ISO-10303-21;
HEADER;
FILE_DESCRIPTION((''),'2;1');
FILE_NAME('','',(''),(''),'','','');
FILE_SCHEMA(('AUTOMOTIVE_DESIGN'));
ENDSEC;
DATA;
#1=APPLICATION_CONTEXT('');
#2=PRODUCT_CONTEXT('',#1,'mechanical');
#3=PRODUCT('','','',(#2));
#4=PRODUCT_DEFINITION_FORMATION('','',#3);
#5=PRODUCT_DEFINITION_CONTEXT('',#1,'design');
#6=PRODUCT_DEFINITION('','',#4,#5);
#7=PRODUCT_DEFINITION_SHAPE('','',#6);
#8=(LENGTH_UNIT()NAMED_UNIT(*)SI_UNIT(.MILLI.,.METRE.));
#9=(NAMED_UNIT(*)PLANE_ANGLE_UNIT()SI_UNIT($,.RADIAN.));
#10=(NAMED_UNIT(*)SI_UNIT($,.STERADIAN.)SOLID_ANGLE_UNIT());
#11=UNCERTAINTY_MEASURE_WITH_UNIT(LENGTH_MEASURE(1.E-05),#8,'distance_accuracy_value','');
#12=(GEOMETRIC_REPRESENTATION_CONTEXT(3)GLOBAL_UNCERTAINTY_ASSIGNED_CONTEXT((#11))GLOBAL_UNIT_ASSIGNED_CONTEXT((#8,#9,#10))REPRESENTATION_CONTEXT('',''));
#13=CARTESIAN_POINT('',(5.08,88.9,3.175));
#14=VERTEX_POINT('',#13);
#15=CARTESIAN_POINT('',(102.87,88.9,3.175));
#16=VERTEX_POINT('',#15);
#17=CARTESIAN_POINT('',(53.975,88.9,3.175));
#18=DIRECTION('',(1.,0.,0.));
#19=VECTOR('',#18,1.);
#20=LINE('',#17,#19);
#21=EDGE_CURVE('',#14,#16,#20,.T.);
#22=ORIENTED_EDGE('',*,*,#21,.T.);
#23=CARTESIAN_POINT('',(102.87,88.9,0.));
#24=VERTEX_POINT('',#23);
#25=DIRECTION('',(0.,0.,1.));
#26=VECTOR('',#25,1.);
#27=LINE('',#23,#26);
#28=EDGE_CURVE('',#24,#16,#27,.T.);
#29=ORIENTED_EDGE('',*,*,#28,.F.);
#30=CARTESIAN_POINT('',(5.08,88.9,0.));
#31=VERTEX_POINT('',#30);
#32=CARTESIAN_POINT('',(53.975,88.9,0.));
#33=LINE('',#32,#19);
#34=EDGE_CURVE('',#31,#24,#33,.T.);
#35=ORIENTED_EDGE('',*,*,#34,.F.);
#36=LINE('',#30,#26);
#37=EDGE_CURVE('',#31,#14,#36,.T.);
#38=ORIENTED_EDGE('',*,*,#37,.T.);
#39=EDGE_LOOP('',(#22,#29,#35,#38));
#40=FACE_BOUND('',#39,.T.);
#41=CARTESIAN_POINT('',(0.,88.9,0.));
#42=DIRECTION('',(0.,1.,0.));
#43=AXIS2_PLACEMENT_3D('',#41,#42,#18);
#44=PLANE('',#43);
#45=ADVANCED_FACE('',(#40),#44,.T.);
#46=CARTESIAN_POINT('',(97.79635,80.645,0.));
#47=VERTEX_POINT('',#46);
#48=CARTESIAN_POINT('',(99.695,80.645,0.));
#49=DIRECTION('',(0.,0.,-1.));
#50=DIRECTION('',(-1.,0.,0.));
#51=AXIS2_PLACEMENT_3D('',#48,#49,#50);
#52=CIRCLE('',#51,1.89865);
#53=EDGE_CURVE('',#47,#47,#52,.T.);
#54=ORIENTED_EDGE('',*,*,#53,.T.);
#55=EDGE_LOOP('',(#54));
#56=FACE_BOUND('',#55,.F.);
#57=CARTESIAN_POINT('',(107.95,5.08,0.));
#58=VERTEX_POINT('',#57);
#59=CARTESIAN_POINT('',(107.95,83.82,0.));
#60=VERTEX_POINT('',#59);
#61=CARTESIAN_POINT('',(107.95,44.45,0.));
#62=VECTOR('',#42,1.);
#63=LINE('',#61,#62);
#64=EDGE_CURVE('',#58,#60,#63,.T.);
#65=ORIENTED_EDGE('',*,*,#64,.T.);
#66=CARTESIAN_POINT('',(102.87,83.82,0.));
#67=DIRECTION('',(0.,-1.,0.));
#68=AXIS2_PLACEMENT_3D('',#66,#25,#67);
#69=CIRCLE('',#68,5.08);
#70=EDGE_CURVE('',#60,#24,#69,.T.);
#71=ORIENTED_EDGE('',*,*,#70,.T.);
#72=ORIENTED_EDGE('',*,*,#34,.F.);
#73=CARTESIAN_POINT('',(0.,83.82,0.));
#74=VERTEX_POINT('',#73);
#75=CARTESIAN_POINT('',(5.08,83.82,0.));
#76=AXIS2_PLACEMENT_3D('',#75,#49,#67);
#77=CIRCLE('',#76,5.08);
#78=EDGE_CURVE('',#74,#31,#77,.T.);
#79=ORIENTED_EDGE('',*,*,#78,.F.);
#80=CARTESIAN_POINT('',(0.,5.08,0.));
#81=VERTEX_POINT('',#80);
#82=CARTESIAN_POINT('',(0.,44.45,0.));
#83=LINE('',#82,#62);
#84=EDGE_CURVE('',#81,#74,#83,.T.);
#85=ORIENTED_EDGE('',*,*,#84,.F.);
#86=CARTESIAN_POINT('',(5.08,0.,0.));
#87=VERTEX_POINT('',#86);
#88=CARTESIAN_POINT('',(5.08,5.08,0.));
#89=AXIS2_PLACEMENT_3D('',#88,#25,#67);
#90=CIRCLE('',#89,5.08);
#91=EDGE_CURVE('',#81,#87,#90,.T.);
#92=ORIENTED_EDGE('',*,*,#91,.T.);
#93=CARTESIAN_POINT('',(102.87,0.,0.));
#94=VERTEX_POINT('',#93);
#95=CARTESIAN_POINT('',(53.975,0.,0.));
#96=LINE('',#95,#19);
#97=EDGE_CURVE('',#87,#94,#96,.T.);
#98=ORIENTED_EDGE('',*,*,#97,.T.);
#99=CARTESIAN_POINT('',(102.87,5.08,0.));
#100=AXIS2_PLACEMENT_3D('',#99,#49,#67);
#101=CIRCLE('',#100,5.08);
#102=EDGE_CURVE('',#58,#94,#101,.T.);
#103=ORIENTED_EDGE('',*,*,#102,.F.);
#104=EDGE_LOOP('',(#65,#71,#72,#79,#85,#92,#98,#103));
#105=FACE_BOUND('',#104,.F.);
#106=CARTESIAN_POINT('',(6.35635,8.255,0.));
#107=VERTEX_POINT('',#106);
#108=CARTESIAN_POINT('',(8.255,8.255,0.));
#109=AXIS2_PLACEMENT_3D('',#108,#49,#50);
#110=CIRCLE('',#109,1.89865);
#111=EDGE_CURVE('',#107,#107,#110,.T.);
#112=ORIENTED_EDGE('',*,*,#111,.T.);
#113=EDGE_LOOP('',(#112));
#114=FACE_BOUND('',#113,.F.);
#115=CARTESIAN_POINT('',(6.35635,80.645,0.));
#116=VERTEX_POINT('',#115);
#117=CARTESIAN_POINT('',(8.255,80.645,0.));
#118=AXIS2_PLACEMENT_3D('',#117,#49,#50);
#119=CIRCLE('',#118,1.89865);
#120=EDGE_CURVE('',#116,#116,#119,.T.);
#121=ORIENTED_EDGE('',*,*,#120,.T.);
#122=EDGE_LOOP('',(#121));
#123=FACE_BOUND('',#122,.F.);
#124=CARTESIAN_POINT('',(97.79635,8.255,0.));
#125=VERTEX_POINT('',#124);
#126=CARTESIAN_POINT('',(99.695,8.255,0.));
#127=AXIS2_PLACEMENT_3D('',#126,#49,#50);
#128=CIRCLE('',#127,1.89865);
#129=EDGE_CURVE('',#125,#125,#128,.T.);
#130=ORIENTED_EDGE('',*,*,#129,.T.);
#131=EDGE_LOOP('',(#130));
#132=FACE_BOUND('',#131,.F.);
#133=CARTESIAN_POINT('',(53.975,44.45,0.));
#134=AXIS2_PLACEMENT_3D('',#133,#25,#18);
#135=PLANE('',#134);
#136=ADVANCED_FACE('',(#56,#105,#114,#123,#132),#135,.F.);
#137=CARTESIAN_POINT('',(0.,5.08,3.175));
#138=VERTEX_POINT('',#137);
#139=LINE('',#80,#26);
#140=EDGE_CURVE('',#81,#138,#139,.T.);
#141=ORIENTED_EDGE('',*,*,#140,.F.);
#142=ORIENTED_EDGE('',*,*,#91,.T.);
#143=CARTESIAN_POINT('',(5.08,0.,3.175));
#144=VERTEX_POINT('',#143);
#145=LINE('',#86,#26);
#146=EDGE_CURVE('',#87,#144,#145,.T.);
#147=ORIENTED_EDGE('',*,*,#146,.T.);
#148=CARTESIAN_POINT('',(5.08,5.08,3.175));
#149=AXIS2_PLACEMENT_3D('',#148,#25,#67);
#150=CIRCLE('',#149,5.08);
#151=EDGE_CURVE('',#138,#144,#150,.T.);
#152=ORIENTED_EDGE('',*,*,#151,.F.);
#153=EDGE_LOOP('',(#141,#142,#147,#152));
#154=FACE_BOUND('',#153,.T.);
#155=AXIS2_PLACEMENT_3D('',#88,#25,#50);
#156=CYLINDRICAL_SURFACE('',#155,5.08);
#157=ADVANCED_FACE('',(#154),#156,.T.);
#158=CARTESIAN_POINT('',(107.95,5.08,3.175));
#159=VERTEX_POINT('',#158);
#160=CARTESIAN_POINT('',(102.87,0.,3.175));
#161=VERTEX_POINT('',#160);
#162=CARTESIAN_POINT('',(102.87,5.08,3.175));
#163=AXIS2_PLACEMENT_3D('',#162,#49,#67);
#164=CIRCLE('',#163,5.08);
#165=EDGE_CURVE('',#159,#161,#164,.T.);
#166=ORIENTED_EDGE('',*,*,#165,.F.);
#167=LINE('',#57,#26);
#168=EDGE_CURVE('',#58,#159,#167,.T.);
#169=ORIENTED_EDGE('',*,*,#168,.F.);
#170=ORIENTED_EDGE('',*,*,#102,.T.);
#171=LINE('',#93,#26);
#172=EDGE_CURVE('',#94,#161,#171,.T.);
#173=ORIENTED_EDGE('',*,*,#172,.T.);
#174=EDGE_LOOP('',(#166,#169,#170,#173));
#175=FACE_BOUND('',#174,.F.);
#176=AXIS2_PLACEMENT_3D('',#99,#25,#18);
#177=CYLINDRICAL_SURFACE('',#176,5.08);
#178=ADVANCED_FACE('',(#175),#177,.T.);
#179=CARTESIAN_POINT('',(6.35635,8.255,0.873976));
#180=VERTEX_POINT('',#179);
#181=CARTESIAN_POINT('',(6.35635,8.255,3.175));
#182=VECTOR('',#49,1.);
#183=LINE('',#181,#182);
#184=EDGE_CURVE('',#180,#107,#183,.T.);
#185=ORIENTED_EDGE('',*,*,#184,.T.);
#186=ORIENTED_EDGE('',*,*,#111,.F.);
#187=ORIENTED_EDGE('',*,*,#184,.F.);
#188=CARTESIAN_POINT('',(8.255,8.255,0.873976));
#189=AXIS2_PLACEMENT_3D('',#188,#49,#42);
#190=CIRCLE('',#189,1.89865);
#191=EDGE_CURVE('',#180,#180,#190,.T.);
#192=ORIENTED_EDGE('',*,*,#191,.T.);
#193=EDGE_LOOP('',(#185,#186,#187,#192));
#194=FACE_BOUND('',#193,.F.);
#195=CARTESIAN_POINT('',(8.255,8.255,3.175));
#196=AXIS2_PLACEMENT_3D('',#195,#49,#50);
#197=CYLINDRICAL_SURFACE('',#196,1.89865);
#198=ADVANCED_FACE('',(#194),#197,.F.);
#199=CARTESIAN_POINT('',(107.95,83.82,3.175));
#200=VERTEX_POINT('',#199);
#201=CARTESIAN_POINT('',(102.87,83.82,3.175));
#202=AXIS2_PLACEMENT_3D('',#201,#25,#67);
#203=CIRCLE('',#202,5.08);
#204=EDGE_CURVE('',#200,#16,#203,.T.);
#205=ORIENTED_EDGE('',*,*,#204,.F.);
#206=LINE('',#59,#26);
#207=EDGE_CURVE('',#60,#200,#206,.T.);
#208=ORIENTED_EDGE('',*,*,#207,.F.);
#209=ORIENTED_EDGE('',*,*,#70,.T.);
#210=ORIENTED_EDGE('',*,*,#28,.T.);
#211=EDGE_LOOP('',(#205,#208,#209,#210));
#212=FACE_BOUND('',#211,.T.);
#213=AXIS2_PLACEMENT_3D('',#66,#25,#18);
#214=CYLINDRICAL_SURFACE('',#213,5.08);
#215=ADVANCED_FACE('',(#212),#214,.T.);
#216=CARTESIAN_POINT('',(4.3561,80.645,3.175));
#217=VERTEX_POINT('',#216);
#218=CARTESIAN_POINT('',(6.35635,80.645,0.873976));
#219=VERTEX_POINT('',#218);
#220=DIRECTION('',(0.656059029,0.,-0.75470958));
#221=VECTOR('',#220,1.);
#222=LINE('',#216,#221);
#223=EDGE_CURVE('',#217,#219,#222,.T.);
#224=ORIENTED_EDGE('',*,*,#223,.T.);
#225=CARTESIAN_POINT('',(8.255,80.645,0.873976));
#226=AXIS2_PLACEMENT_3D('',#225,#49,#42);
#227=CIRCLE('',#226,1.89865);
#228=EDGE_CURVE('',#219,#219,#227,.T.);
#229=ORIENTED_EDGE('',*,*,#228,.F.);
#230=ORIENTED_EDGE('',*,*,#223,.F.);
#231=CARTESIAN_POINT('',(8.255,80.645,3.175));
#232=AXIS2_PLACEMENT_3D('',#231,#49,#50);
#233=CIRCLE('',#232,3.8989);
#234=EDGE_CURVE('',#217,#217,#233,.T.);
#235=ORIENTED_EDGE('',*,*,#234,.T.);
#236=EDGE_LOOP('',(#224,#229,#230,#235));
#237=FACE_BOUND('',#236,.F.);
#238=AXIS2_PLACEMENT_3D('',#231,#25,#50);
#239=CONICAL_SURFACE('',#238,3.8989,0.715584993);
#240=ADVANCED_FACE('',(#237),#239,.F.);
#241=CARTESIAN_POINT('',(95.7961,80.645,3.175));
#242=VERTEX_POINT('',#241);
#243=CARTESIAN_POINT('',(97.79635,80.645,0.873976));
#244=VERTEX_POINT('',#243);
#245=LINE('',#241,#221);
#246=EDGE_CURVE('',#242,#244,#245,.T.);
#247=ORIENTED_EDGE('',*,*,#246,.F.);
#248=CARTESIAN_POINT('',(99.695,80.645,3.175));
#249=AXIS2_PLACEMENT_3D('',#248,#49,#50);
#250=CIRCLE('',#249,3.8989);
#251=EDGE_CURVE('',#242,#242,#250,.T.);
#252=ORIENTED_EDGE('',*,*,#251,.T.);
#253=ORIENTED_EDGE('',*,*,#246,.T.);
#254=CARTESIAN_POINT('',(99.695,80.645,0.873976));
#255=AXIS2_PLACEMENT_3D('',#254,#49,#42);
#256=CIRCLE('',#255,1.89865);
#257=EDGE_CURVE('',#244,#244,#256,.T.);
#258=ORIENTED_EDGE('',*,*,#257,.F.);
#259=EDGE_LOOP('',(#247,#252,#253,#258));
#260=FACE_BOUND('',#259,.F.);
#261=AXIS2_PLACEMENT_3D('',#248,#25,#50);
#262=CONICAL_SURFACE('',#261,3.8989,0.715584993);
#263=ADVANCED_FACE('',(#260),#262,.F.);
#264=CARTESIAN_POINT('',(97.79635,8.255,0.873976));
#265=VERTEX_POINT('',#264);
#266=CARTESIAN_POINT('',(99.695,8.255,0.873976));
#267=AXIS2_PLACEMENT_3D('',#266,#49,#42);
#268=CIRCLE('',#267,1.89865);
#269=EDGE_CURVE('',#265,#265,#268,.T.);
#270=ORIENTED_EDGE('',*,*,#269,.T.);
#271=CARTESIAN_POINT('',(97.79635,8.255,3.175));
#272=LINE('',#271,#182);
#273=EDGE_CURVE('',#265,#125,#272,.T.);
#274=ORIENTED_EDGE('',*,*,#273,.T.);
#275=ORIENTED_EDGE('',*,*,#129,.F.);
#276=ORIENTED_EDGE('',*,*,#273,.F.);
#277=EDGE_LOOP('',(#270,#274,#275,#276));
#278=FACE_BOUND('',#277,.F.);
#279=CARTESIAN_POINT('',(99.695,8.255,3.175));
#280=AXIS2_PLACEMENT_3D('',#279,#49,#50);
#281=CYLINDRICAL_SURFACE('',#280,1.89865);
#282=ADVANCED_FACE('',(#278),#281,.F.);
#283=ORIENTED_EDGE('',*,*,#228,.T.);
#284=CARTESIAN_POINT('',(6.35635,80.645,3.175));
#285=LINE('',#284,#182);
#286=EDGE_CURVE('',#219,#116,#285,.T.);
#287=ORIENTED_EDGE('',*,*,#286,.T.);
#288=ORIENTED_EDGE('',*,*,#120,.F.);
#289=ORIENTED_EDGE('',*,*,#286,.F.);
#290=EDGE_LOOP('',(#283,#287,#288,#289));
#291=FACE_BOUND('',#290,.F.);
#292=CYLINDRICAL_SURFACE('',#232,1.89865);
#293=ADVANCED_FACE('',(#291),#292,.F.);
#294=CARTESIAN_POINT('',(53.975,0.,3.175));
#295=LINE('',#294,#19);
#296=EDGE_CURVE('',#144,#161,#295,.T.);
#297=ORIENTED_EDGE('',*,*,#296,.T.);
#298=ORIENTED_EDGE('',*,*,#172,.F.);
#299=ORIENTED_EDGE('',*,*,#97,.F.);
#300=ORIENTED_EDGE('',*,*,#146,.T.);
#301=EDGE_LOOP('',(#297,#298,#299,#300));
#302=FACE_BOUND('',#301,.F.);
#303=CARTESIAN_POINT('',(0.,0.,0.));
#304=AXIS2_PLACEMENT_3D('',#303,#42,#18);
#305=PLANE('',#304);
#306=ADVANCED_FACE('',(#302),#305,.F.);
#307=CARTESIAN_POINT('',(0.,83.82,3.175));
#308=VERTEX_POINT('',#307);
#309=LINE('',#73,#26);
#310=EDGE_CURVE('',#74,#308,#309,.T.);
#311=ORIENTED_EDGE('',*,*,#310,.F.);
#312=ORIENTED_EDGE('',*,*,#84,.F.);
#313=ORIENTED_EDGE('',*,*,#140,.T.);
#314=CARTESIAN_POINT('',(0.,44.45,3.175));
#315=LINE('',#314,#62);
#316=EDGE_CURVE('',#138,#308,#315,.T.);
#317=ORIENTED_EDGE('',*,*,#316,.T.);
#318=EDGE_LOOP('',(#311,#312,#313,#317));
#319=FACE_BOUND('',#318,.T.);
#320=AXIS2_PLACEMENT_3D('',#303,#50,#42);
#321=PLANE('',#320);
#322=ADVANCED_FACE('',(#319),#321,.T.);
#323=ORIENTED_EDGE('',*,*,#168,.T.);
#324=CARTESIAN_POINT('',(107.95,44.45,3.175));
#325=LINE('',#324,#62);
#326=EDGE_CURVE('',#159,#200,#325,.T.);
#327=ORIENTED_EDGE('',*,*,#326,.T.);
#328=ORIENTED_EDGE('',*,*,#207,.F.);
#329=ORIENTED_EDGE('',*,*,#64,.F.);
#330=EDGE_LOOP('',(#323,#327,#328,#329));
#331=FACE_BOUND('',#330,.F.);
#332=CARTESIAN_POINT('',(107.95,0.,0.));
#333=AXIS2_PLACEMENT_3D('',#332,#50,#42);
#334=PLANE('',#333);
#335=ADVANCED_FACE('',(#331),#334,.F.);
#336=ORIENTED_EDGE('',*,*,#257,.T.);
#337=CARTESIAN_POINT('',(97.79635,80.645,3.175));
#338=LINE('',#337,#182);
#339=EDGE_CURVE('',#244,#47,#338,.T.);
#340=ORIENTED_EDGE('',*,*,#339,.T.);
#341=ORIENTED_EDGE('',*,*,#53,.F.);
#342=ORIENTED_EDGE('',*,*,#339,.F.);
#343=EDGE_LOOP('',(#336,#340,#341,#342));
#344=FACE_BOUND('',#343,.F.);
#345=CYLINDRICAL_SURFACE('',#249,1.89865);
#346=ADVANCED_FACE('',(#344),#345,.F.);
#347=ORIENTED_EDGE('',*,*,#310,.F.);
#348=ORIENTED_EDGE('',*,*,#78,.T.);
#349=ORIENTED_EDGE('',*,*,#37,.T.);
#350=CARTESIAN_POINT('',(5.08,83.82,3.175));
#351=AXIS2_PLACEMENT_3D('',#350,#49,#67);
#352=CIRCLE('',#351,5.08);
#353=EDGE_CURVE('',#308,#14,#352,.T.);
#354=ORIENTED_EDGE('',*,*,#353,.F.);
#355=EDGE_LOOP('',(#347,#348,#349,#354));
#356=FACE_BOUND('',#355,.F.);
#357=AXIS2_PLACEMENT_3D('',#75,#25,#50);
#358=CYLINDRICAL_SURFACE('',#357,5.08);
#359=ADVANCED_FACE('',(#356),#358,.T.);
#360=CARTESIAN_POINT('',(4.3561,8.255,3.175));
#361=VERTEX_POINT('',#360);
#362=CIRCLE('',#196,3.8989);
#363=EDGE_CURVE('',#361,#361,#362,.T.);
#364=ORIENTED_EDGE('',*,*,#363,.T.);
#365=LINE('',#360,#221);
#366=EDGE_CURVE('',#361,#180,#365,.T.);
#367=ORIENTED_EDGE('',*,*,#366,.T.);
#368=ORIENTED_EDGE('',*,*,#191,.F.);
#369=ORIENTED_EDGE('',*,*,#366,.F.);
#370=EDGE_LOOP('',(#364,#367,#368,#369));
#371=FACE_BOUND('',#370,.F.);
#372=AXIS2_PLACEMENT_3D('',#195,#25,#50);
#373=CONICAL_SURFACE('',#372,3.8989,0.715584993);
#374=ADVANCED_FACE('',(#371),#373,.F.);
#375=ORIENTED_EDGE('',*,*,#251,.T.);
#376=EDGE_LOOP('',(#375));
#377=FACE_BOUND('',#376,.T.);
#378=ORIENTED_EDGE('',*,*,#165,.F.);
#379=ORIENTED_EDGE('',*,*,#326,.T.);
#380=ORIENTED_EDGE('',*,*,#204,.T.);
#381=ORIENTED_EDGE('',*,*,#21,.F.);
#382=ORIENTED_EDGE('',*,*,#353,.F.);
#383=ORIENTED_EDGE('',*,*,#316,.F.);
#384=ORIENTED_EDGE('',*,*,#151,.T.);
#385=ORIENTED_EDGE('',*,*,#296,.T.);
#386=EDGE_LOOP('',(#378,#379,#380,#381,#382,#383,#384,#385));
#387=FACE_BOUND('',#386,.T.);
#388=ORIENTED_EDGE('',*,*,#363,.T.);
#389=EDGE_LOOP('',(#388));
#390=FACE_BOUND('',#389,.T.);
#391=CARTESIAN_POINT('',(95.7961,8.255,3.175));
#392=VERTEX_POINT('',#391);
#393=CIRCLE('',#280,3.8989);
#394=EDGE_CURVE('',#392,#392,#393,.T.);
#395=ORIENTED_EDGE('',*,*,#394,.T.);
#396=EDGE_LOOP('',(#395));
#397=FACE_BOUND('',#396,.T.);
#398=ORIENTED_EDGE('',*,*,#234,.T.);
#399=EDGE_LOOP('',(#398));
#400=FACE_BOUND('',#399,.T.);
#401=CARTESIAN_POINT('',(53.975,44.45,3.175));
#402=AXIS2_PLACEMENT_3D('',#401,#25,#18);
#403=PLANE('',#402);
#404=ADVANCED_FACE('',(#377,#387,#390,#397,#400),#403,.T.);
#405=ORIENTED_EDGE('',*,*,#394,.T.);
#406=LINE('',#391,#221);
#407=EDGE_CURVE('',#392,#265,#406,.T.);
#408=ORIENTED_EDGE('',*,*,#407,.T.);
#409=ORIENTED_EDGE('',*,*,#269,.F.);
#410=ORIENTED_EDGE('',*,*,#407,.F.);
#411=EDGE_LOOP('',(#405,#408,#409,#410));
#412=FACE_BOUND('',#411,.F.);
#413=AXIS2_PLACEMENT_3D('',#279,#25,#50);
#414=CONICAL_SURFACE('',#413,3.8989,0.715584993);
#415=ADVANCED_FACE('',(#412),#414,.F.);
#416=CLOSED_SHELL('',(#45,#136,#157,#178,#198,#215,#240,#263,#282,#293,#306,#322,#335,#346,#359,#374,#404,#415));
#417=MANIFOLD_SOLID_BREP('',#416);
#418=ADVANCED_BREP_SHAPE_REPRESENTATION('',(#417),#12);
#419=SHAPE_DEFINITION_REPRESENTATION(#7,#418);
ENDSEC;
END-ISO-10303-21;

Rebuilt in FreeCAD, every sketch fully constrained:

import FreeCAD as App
import Part
import Sketcher
Q = App.Units.Quantity


def edges_at(feature, points):
    """Names of the edges that pass closest to the given points."""
    edges = feature.Shape.Edges
    near = lambda p: min(range(len(edges)), key=lambda i: edges[i].distToShape(Part.Vertex(*p))[0])
    return sorted({f"Edge{near(p) + 1}" for p in points})


def add_polygon(sketch, points):
    """Adds a closed chain of lines whose ends are joined by coincident constraints."""
    first, n = sketch.GeometryCount, len(points)
    for a, b in zip(points, points[1:] + points[:1]):
        sketch.addGeometry(Part.LineSegment(App.Vector(*a, 0), App.Vector(*b, 0)), False)
    for i in range(n):
        sketch.addConstraint(Sketcher.Constraint("Coincident", first + i, 2, first + (i + 1) % n, 1))

doc = App.newDocument("Part")
body = doc.addObject("PartDesign::Body", "Body")

# Sketch on XY plane
sketch1 = body.newObject("Sketcher::SketchObject", "Sketch")
sketch1.AttachmentSupport = (doc.getObject("XY_Plane"), [""])
sketch1.MapMode = "FlatFace"
add_polygon(sketch1, [(0, 88.9), (0, 0), (107.95, 0), (107.95, 88.9)])  # lines 0-3
sketch1.addConstraint(Sketcher.Constraint("Vertical", 0))
sketch1.addConstraint(Sketcher.Constraint("Horizontal", 1))
sketch1.addConstraint(Sketcher.Constraint("Vertical", 2))
sketch1.addConstraint(Sketcher.Constraint("Horizontal", 3))
sketch1.addConstraint(Sketcher.Constraint("Coincident", 0, 2, -1, 1))
sketch1.addConstraint(Sketcher.Constraint("DistanceY", 0, 2, 0, 1, Q("3.5 in")))
sketch1.addConstraint(Sketcher.Constraint("DistanceX", 1, 1, 1, 2, Q("4.25 in")))
pad1 = body.newObject("PartDesign::Pad", "Pad")
pad1.Profile = sketch1
pad1.Length = Q("0.125 in")

# Sketch on XY plane
sketch2 = body.newObject("Sketcher::SketchObject", "Sketch001")
sketch2.AttachmentSupport = (doc.getObject("XY_Plane"), [""])
sketch2.MapMode = "FlatFace"
sketch2.AttachmentOffset = App.Placement(App.Vector(0, 0, 0.125 * 25.4), App.Rotation())
sketch2.addGeometry(Part.Circle(App.Vector(8.255, 80.645, 0), App.Vector(0, 0, 1), 1.89865), False)
sketch2.addGeometry(Part.Circle(App.Vector(99.695, 80.645, 0), App.Vector(0, 0, 1), 1.89865), False)
sketch2.addGeometry(Part.Circle(App.Vector(99.695, 8.255, 0), App.Vector(0, 0, 1), 1.89865), False)
sketch2.addGeometry(Part.Circle(App.Vector(8.255, 8.255, 0), App.Vector(0, 0, 1), 1.89865), False)
sketch2.addConstraint(Sketcher.Constraint("Equal", 0, 1))
sketch2.addConstraint(Sketcher.Constraint("Equal", 1, 2))
sketch2.addConstraint(Sketcher.Constraint("Equal", 2, 3))
sketch2.addConstraint(Sketcher.Constraint("Horizontal", 0, 3, 1, 3))
sketch2.addConstraint(Sketcher.Constraint("Horizontal", 2, 3, 3, 3))
sketch2.addConstraint(Sketcher.Constraint("Vertical", 1, 3, 2, 3))
sketch2.addConstraint(Sketcher.Constraint("Vertical", 0, 3, 3, 3))
sketch2.addConstraint(Sketcher.Constraint("Diameter", 0, Q("0.1495 in")))
sketch2.addConstraint(Sketcher.Constraint("DistanceX", 0, 3, 1, 3, Q("3.6 in")))
sketch2.addConstraint(Sketcher.Constraint("DistanceY", 2, 3, 1, 3, Q("2.85 in")))
sketch2.addConstraint(Sketcher.Constraint("DistanceX", -1, 1, 0, 3, Q("0.325 in")))
sketch2.addConstraint(Sketcher.Constraint("DistanceY", -1, 1, 0, 3, Q("3.175 in")))
doc.recompute()
hole = body.newObject("PartDesign::Hole", "Hole")
hole.Profile = sketch2
hole.ThreadType = "None"
hole.Diameter = Q("0.1495 in")
hole.DepthType = "ThroughAll"
hole.HoleCutType = "Countersink"
hole.HoleCutDiameter = Q("0.307 in")
hole.HoleCutCountersinkAngle = 82
doc.recompute()

fillet = body.newObject("PartDesign::Fillet", "Fillet")
fillet.Base = (hole, edges_at(hole, [
    (0, 0, 1.587),
    (107.95, 0, 1.587),
    (107.95, 88.9, 1.587),
    (0, 88.9, 1.587),
]))
fillet.Radius = Q("0.2 in")

doc.recompute()
